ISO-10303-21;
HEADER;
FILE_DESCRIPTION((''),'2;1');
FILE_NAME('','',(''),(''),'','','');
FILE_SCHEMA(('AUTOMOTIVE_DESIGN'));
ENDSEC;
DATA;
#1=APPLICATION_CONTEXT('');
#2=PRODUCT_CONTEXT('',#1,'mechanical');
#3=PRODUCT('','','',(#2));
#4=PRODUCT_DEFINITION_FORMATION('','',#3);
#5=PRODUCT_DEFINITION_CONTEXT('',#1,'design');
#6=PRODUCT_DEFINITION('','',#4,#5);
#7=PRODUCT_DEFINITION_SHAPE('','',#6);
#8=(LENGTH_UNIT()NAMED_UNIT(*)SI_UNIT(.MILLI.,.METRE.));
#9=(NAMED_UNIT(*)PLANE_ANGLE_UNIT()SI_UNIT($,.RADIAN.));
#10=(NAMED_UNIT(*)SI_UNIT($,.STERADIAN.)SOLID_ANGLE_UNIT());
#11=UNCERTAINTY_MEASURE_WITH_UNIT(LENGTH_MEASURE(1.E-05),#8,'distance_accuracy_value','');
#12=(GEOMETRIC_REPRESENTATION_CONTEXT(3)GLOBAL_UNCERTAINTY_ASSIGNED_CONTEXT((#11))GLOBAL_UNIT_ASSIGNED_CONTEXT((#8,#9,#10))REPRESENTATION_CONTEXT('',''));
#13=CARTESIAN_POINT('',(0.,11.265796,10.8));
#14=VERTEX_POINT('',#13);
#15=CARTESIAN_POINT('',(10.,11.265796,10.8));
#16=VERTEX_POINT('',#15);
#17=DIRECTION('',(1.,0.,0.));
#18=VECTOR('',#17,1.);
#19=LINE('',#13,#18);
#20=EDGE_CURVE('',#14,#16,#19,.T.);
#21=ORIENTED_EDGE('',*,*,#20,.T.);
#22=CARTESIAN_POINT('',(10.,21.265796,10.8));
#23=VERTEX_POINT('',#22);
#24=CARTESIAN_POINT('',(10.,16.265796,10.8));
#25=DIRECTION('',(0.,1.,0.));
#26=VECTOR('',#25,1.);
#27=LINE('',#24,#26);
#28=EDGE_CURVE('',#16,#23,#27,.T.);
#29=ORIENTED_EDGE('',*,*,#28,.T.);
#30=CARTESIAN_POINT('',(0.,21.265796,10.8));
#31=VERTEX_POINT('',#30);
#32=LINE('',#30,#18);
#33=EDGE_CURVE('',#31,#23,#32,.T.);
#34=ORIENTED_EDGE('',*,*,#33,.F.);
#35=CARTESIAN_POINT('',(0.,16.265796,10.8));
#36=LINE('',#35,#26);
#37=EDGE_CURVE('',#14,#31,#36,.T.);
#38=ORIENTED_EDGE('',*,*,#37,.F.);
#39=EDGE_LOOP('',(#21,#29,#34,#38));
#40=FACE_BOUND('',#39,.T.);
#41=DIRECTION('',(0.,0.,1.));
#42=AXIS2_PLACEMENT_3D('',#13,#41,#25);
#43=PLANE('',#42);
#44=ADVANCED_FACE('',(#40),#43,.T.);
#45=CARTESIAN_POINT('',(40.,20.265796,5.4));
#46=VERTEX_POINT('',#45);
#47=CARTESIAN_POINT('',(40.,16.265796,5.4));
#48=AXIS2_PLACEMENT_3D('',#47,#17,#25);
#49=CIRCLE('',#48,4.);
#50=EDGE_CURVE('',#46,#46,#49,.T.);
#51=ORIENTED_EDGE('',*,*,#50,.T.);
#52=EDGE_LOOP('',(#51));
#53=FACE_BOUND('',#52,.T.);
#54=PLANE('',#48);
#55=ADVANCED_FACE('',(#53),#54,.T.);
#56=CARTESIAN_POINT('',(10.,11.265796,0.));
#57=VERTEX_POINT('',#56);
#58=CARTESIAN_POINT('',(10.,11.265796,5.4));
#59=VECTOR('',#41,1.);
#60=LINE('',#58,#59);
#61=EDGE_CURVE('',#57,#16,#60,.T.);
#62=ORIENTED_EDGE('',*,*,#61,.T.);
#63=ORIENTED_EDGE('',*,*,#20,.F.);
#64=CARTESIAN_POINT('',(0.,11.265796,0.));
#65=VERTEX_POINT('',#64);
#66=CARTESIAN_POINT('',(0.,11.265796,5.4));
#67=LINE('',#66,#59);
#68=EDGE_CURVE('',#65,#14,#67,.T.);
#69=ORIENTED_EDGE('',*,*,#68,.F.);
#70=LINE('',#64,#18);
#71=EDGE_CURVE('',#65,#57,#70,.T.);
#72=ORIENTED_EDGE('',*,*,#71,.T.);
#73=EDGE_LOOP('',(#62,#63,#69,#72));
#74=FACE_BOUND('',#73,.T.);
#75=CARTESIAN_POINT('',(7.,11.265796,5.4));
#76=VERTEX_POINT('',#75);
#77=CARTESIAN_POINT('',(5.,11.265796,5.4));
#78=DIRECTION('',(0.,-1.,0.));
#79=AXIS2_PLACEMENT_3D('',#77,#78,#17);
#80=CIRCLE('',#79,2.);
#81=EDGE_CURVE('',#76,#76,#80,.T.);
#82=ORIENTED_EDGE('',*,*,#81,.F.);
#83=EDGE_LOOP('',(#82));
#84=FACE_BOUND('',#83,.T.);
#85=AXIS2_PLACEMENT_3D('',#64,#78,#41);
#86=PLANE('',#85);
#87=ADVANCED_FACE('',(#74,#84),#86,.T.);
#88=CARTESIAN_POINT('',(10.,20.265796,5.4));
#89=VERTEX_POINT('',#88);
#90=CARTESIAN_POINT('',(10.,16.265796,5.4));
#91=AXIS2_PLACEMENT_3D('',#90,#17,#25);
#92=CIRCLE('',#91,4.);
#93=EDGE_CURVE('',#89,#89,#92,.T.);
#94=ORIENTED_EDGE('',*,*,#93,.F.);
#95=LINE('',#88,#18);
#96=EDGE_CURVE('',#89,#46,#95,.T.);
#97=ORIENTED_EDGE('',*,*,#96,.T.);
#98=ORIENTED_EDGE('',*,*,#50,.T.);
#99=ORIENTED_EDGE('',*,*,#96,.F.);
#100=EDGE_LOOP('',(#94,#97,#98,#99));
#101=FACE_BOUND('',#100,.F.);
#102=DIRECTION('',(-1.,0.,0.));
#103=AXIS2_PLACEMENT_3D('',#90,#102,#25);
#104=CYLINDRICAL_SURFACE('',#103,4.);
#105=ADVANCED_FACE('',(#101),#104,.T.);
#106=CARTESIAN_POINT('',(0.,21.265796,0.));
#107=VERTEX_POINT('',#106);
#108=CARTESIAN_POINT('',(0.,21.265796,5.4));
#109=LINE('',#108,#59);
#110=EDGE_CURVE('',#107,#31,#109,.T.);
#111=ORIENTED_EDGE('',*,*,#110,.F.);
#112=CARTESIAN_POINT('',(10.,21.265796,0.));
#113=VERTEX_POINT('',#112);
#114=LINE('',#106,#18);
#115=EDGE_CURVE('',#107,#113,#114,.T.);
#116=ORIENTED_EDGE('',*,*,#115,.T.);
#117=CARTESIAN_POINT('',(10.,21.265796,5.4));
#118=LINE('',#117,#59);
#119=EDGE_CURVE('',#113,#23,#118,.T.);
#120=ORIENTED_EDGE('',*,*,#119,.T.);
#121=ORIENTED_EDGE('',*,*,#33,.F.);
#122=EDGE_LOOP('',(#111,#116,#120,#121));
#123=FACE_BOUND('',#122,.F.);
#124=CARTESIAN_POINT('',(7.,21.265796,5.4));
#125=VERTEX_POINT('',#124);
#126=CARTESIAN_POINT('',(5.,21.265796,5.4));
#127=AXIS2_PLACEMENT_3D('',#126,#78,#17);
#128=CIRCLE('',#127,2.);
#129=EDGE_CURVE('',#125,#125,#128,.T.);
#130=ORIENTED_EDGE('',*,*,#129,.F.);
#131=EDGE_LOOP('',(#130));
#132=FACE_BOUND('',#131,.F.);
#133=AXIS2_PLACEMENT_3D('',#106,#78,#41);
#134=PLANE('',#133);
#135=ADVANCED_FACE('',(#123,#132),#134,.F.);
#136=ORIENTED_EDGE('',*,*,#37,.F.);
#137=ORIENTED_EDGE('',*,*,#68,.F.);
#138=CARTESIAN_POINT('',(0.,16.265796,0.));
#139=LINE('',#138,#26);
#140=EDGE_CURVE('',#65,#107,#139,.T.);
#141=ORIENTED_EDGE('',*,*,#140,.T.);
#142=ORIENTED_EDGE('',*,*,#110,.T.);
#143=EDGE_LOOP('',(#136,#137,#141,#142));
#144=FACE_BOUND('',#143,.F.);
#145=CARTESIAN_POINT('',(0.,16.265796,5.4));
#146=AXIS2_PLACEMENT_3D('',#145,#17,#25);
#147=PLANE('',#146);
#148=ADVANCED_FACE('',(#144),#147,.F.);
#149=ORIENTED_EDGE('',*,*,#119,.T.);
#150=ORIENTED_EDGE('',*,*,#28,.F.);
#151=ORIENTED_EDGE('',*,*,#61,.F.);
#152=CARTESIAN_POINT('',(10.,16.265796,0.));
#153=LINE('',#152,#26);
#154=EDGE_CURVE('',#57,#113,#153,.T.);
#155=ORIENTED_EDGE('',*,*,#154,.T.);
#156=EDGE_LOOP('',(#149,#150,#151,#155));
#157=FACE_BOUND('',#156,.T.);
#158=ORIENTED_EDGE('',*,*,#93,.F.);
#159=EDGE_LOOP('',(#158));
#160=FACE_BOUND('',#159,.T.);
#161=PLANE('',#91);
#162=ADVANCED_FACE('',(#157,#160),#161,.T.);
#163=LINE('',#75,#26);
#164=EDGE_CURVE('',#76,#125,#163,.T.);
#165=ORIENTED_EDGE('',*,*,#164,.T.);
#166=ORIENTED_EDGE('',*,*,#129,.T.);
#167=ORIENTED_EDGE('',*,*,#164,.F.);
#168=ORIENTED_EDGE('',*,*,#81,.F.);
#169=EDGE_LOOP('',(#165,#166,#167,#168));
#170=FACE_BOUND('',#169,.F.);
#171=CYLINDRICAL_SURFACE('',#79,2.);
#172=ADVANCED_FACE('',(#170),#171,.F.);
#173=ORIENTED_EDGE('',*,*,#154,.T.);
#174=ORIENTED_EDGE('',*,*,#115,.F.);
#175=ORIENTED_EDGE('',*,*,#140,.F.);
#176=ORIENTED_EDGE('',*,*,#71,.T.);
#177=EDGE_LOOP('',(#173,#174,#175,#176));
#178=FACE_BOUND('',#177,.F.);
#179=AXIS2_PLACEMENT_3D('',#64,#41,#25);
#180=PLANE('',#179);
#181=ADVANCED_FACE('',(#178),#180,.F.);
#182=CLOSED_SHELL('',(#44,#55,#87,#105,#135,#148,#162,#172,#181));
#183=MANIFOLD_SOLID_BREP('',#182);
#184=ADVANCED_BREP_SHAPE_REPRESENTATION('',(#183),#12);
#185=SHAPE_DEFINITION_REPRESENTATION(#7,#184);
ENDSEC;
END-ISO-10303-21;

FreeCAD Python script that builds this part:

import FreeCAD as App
import Part
import Sketcher
from FreeCAD import Vector


def add_polygon(sketch, points):
    """Adds a closed chain of lines whose ends are joined by coincident constraints."""
    first, n = sketch.GeometryCount, len(points)
    for a, b in zip(points, points[1:] + points[:1]):
        sketch.addGeometry(Part.LineSegment(App.Vector(*a, 0), App.Vector(*b, 0)), False)
    for i in range(n):
        sketch.addConstraint(Sketcher.Constraint("Coincident", first + i, 2, first + (i + 1) % n, 1))

doc = App.newDocument("Part")
body = doc.addObject("PartDesign::Body", "Body")

# Sketch on YZ plane
sketch1 = body.newObject("Sketcher::SketchObject", "Sketch")
sketch1.AttachmentSupport = (doc.getObject("YZ_Plane"), [""])
sketch1.MapMode = "FlatFace"
add_polygon(sketch1, [(11, 11), (11, 0), (21, 0), (21, 11)])  # lines 0-3
sketch1.addConstraint(Sketcher.Constraint("Vertical", 0))
sketch1.addConstraint(Sketcher.Constraint("Horizontal", 1))
sketch1.addConstraint(Sketcher.Constraint("Vertical", 2))
sketch1.addConstraint(Sketcher.Constraint("Horizontal", 3))
sketch1.addConstraint(Sketcher.Constraint("PointOnObject", 0, 2, -1))
sketch1.addConstraint(Sketcher.Constraint("DistanceX", 1, 1, 1, 2, 10.0))
sketch1.addConstraint(Sketcher.Constraint("DistanceY", 0, 2, 0, 1, 10.8))
sketch1.addConstraint(Sketcher.Constraint("DistanceX", -1, 1, 0, 2, 11.265796))
pad1 = body.newObject("PartDesign::Pad", "Pad")
pad1.Profile = sketch1
pad1.Length = 10

# Sketch on YZ plane
sketch2 = body.newObject("Sketcher::SketchObject", "Sketch001")
sketch2.AttachmentSupport = (doc.getObject("YZ_Plane"), [""])
sketch2.MapMode = "FlatFace"
sketch2.AttachmentOffset = App.Placement(Vector(0, 0, 10), App.Rotation())
sketch2.addGeometry(Part.Circle(Vector(16.3, 5.4, 0), Vector(0, 0, 1), 4), False)
sketch2.addConstraint(Sketcher.Constraint("Diameter", 0, 8.0))
sketch2.addConstraint(Sketcher.Constraint("DistanceY", -1, 1, 0, 3, 5.4))
sketch2.addConstraint(Sketcher.Constraint("DistanceX", -1, 1, 0, 3, 16.265796))
pad2 = body.newObject("PartDesign::Pad", "Pad001")
pad2.Profile = sketch2
pad2.Length = 30

# Sketch on XZ plane
sketch3 = body.newObject("Sketcher::SketchObject", "Sketch002")
sketch3.AttachmentSupport = (doc.getObject("XZ_Plane"), [""])
sketch3.MapMode = "FlatFace"
sketch3.AttachmentOffset = App.Placement(Vector(0, 0, -11.265796), App.Rotation())
sketch3.addGeometry(Part.Circle(Vector(5, 5.4, 0), Vector(0, 0, 1), 2), False)
sketch3.addConstraint(Sketcher.Constraint("Diameter", 0, 4.0))
sketch3.addConstraint(Sketcher.Constraint("DistanceX", -1, 1, 0, 3, 5.0))
sketch3.addConstraint(Sketcher.Constraint("DistanceY", -1, 1, 0, 3, 5.4))
pocket1 = body.newObject("PartDesign::Pocket", "Pocket")
pocket1.Profile = sketch3
pocket1.Length = 25

doc.recompute()
